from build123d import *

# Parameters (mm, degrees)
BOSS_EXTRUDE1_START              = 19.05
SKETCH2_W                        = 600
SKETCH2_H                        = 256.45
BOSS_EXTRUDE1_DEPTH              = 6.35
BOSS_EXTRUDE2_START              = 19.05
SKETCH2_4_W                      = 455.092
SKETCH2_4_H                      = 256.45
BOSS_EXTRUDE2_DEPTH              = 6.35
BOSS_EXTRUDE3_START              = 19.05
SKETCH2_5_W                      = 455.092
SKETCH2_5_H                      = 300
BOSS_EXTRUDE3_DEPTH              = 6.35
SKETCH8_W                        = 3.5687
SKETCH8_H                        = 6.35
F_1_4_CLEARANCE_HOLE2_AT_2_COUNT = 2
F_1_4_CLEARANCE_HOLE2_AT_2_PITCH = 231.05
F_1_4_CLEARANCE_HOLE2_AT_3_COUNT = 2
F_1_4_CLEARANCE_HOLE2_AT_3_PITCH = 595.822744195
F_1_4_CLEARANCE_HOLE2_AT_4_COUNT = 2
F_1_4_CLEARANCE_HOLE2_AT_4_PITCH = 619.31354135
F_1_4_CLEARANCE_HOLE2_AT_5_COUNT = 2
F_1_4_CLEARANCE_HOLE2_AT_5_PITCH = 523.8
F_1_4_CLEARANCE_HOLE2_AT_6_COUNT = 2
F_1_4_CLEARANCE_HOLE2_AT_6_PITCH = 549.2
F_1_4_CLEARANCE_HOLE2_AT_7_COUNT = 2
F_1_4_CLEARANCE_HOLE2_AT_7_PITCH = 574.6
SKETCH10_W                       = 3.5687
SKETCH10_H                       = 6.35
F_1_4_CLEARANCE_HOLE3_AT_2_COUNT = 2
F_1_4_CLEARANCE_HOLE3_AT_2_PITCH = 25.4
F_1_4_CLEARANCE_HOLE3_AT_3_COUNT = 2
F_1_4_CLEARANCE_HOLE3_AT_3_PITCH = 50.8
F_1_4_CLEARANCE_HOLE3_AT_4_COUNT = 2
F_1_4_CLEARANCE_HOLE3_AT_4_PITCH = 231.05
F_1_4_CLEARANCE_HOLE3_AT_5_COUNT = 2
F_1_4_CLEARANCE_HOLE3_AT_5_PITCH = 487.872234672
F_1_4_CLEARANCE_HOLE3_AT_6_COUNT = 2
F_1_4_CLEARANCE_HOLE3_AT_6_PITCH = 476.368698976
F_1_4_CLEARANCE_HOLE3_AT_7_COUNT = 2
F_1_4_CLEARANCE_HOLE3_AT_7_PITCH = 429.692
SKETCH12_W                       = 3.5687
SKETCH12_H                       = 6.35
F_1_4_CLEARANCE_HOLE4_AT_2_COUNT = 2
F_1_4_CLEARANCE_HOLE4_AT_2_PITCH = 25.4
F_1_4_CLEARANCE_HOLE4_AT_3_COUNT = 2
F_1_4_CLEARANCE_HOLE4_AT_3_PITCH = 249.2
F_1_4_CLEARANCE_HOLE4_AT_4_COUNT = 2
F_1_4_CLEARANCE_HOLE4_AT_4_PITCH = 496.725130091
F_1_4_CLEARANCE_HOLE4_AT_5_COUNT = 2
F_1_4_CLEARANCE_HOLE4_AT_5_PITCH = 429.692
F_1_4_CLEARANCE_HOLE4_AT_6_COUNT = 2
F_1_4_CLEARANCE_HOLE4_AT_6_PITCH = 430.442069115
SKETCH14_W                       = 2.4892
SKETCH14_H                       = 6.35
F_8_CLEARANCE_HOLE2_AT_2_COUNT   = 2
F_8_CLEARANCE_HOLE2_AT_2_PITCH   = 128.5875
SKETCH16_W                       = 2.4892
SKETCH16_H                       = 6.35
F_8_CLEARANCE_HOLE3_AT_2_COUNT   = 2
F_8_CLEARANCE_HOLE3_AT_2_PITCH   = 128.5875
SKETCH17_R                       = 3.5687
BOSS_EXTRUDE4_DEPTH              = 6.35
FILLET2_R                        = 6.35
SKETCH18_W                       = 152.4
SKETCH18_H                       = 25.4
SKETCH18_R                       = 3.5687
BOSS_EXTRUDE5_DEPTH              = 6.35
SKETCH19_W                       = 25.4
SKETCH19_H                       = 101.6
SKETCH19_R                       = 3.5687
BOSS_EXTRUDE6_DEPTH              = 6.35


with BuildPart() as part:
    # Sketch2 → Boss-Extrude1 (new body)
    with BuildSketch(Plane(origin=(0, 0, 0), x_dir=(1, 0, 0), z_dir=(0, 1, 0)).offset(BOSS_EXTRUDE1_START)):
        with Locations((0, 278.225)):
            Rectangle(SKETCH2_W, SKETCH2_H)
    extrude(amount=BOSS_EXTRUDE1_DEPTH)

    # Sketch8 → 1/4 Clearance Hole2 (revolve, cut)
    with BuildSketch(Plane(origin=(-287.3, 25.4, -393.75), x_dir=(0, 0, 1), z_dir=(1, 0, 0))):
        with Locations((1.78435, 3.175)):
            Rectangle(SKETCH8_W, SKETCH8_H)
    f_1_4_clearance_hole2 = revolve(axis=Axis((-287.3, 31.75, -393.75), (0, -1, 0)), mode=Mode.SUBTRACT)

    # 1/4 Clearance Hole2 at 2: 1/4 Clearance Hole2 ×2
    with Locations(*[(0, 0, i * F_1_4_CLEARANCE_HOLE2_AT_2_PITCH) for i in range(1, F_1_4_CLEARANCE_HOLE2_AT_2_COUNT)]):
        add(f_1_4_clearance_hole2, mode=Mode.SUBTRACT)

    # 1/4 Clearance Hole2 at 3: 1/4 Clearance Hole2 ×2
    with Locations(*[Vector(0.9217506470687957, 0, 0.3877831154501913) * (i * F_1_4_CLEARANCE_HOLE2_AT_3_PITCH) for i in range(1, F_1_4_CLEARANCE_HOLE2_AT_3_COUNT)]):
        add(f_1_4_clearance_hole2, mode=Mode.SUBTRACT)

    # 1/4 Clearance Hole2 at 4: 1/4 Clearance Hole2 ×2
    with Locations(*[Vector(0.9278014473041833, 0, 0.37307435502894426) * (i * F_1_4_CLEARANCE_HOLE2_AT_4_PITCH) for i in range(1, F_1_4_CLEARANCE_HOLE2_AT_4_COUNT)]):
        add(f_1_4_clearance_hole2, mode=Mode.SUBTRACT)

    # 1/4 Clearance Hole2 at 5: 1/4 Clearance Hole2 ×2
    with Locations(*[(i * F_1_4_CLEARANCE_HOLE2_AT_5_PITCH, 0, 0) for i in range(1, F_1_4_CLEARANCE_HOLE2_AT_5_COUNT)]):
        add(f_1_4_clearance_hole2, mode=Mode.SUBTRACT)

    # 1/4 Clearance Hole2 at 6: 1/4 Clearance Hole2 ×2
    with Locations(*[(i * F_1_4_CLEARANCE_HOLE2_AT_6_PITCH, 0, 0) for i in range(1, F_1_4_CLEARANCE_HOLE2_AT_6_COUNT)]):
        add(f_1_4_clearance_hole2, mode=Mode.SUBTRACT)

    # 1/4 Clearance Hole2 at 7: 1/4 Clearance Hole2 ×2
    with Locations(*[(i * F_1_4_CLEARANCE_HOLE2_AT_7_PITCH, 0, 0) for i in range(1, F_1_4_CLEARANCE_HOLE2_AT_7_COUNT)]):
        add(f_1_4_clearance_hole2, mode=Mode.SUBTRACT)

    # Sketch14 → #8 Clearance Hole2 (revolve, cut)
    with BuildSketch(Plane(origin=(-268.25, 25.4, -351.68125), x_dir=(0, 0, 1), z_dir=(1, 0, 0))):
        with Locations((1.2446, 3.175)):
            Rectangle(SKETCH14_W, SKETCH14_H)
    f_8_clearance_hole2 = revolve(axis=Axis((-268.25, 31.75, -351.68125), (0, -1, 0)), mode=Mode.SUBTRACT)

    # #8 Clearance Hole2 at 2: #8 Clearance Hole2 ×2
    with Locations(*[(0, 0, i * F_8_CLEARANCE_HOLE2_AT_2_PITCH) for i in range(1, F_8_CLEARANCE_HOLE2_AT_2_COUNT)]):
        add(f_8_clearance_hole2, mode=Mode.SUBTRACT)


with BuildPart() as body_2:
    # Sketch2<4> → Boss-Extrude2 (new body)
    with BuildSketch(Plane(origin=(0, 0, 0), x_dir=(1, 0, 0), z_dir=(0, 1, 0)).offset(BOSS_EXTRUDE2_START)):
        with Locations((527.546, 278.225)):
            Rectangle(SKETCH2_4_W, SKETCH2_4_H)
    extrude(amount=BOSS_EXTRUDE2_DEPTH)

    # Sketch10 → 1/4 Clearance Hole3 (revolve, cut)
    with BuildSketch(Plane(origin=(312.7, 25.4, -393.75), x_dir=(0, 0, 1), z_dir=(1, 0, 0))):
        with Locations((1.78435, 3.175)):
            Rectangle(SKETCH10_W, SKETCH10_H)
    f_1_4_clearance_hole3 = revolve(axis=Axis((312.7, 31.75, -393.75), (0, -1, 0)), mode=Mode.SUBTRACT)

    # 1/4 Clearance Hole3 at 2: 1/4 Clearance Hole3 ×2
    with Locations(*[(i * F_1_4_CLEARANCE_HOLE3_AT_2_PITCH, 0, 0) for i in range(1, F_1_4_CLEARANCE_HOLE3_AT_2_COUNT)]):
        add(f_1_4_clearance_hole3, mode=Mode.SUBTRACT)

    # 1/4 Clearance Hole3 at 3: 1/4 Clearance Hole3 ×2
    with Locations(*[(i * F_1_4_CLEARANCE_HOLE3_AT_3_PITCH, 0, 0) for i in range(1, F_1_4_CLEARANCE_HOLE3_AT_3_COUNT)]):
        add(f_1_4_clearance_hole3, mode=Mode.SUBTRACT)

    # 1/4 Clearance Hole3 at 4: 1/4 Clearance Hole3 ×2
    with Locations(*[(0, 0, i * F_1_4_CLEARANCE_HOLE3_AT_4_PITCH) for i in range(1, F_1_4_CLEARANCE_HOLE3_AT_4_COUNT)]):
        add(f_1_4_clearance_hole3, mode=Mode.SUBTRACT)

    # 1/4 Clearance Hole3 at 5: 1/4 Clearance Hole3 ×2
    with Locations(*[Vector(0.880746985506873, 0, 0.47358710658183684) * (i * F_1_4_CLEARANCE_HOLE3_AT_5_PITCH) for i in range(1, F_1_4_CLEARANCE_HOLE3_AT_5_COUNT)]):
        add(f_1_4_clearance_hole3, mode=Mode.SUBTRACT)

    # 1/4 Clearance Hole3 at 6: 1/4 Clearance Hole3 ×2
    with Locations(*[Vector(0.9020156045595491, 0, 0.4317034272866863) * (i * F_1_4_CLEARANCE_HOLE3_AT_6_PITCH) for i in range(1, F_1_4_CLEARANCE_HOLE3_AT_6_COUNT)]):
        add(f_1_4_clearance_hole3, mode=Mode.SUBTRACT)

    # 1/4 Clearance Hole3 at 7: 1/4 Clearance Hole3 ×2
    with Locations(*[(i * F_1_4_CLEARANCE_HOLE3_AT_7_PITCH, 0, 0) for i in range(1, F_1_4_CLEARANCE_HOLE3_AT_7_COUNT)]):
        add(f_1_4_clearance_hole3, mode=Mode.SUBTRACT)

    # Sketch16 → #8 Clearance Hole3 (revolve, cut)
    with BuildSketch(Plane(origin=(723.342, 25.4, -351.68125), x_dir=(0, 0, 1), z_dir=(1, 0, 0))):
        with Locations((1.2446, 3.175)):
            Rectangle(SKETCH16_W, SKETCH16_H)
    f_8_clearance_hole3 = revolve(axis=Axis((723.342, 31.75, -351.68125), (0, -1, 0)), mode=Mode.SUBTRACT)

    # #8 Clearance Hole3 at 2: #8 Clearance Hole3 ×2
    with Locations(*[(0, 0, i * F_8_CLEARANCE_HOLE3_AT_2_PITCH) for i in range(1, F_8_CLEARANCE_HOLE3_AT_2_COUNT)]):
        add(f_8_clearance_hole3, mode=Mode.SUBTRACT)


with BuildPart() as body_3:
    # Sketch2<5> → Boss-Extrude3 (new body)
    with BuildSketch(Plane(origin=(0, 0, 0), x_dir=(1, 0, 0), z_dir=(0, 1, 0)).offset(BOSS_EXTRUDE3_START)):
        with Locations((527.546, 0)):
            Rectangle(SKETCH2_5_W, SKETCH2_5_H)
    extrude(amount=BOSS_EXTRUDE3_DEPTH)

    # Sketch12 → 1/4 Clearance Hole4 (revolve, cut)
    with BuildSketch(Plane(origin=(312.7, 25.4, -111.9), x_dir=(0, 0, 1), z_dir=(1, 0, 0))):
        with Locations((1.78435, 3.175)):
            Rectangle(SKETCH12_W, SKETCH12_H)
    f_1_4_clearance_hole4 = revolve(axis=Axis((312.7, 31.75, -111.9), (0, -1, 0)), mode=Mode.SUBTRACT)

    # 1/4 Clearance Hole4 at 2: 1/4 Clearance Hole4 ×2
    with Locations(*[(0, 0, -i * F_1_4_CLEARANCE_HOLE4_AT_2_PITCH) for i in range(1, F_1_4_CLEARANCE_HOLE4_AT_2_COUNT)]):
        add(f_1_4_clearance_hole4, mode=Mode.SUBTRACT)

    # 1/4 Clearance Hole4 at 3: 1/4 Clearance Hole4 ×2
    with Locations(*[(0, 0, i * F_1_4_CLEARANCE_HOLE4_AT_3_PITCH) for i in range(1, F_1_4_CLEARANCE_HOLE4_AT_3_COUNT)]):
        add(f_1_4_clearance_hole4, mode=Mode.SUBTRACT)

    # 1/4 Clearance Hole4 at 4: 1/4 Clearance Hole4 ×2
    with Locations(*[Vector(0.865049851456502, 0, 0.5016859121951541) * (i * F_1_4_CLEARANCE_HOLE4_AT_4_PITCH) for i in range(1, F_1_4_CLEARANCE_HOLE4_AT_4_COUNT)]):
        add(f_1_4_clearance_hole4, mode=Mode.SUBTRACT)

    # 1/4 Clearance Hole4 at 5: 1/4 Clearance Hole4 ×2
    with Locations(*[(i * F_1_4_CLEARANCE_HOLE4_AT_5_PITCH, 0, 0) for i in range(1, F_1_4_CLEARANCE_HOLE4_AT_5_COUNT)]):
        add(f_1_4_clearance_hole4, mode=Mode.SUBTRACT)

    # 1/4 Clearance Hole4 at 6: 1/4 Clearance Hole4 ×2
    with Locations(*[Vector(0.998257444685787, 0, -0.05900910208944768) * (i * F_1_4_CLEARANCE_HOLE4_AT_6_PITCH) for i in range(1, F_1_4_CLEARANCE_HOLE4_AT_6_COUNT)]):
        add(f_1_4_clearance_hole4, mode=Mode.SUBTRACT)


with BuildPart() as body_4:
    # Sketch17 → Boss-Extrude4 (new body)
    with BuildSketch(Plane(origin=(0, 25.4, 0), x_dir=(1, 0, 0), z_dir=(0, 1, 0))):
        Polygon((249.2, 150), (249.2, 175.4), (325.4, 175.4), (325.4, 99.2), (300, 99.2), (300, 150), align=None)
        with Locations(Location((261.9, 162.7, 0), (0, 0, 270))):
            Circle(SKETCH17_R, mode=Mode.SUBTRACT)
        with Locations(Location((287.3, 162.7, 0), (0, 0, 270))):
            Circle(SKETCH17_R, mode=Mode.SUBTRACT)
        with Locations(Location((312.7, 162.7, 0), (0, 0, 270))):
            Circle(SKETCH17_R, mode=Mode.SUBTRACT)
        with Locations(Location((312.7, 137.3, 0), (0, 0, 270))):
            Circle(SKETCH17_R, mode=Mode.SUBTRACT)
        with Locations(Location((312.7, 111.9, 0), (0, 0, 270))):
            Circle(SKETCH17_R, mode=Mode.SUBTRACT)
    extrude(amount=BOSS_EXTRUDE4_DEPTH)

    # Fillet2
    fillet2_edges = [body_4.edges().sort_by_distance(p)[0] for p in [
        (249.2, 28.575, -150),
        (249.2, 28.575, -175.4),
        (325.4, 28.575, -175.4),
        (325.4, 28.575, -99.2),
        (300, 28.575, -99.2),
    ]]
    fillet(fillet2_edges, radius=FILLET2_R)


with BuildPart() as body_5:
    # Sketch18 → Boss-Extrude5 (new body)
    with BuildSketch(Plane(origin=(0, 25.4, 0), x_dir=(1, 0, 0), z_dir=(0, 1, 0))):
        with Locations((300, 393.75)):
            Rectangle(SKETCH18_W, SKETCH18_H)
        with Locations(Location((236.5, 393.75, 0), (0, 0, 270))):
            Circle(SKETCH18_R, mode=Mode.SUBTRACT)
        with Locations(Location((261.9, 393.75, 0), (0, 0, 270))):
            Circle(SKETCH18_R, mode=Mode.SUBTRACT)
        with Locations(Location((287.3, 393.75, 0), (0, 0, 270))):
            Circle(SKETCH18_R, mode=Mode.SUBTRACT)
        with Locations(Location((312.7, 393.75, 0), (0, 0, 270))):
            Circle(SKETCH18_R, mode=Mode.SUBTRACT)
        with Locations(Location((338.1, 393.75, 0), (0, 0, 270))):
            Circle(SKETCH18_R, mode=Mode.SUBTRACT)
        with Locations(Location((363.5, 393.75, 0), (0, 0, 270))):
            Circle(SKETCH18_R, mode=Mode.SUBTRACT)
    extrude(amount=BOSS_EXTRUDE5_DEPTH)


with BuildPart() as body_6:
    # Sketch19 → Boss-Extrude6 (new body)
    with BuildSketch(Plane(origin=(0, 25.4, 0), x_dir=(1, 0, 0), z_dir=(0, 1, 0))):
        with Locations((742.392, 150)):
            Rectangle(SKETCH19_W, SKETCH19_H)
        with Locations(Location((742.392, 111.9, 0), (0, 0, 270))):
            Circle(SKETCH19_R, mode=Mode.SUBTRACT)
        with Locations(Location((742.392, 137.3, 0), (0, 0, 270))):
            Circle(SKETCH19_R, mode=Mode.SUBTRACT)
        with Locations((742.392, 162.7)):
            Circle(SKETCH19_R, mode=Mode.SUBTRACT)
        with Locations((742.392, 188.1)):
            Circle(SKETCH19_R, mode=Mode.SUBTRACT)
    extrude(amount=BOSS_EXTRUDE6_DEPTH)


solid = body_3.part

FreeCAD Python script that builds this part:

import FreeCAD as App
import Part
import Sketcher
from FreeCAD import Vector
Q = App.Units.Quantity


def edges_at(feature, points):
    """Names of the edges that pass closest to the given points."""
    edges = feature.Shape.Edges
    near = lambda p: min(range(len(edges)), key=lambda i: edges[i].distToShape(Part.Vertex(*p))[0])
    return sorted({f"Edge{near(p) + 1}" for p in points})

doc = App.newDocument("Part")
body = doc.addObject("PartDesign::Body", "Body")

# Sketch on XZ plane
sketch1 = body.newObject("Sketcher::SketchObject", "Sketch")
sketch1.AttachmentSupport = (doc.getObject("XZ_Plane"), [""])
sketch1.MapMode = "FlatFace"
sketch1.AttachmentOffset = App.Placement(Vector(0, 0, -0.75 * 25.4), App.Rotation())
sketch1.addGeometry(Part.LineSegment(Vector(-300, -406, 0), Vector(-300, -150, 0)), False)
sketch1.addGeometry(Part.LineSegment(Vector(-300, -150, 0), Vector(300, -150, 0)), False)
sketch1.addGeometry(Part.LineSegment(Vector(300, -150, 0), Vector(300, -406, 0)), False)
sketch1.addGeometry(Part.LineSegment(Vector(300, -406, 0), Vector(-300, -406, 0)), False)
sketch1.addConstraint(Sketcher.Constraint("Coincident", 0, 2, 1, 1))
sketch1.addConstraint(Sketcher.Constraint("Coincident", 1, 2, 2, 1))
sketch1.addConstraint(Sketcher.Constraint("Coincident", 2, 2, 3, 1))
sketch1.addConstraint(Sketcher.Constraint("Coincident", 3, 2, 0, 1))
sketch1.addConstraint(Sketcher.Constraint("Vertical", 0))
sketch1.addConstraint(Sketcher.Constraint("Horizontal", 1))
sketch1.addConstraint(Sketcher.Constraint("Vertical", 2))
sketch1.addConstraint(Sketcher.Constraint("Horizontal", 3))
sketch1.addConstraint(Sketcher.Constraint("DistanceX", 1, 1, 1, 2, Q("600 mm")))
sketch1.addConstraint(Sketcher.Constraint("DistanceY", 0, 1, 0, 2, Q("256.45 mm")))
sketch1.addConstraint(Sketcher.Constraint("DistanceX", 0, 2, -1, 1, Q("300 mm")))
sketch1.addConstraint(Sketcher.Constraint("DistanceY", 0, 2, -1, 1, Q("150 mm")))
pad1 = body.newObject("PartDesign::Pad", "Pad")
pad1.Profile = sketch1
pad1.Length = Q("0.25 in")
pad1.Reversed = True

# Sketch on YZ plane
sketch2 = body.newObject("Sketcher::SketchObject", "Sketch001")
sketch2.AttachmentSupport = (doc.getObject("YZ_Plane"), [""])
sketch2.MapMode = "FlatFace"
sketch2.AttachmentOffset = App.Placement(Vector(0, 0, -287.3), App.Rotation())
sketch2.addGeometry(Part.LineSegment(Vector(19.1, -393.8, 0), Vector(25.4, -393.8, 0)), False)
sketch2.addGeometry(Part.LineSegment(Vector(25.4, -393.8, 0), Vector(25.4, -390.2, 0)), False)
sketch2.addGeometry(Part.LineSegment(Vector(25.4, -390.2, 0), Vector(19.1, -390.2, 0)), False)
sketch2.addGeometry(Part.LineSegment(Vector(19.1, -390.2, 0), Vector(19.1, -393.8, 0)), False)
sketch2.addGeometry(Part.LineSegment(Vector(25.4, -393.8, 0), Vector(19.1, -393.8, 0)), True)  # axis
sketch2.addConstraint(Sketcher.Constraint("Coincident", 0, 2, 1, 1))
sketch2.addConstraint(Sketcher.Constraint("Coincident", 1, 2, 2, 1))
sketch2.addConstraint(Sketcher.Constraint("Coincident", 2, 2, 3, 1))
sketch2.addConstraint(Sketcher.Constraint("Coincident", 3, 2, 0, 1))
sketch2.addConstraint(Sketcher.Constraint("Horizontal", 0))
sketch2.addConstraint(Sketcher.Constraint("Vertical", 1))
sketch2.addConstraint(Sketcher.Constraint("Horizontal", 2))
sketch2.addConstraint(Sketcher.Constraint("Vertical", 3))
sketch2.addConstraint(Sketcher.Constraint("Horizontal", 4))
sketch2.addConstraint(Sketcher.Constraint("Coincident", 4, 1, 0, 2))
sketch2.addConstraint(Sketcher.Constraint("Vertical", 2, 2, 4, 2))
sketch2.addConstraint(Sketcher.Constraint("DistanceX", -1, 1, 0, 2, Q("1 in")))
sketch2.addConstraint(Sketcher.Constraint("DistanceX", 0, 1, 0, 2, Q("0.25 in")))
sketch2.addConstraint(Sketcher.Constraint("DistanceY", 1, 1, 1, 2, Q("0.1405 in")))
sketch2.addConstraint(Sketcher.Constraint("DistanceY", 0, 2, -1, 1, Q("393.75 mm")))
groove = body.newObject("PartDesign::Groove", "Groove")
groove.Profile = sketch2
groove.ReferenceAxis = (sketch2, ["Axis0"])
groove.Angle = 360
doc.recompute()

linearpattern = body.newObject("PartDesign::LinearPattern", "LinearPattern")
linearpattern.Originals = [groove]
linearpattern.Direction = (doc.getObject("Z_Axis"), [""])
linearpattern.Mode = "offset"
linearpattern.Offset = 231.05
linearpattern.Occurrences = 2
body.Tip = linearpattern
doc.recompute()

datumline = body.newObject("PartDesign::Line", "DatumLine")
datumline.Placement = App.Placement(Vector(0, 0, 0), App.Rotation(Vector(0, 0, 1), Vector(0.921750647, 0, 0.387783115)))
linearpattern2 = body.newObject("PartDesign::LinearPattern", "LinearPattern001")
linearpattern2.Originals = [groove]
linearpattern2.Direction = (datumline, [""])
linearpattern2.Mode = "offset"
linearpattern2.Offset = 595.822744
linearpattern2.Occurrences = 2
body.Tip = linearpattern2
doc.recompute()

datumline2 = body.newObject("PartDesign::Line", "DatumLine001")
datumline2.Placement = App.Placement(Vector(0, 0, 0), App.Rotation(Vector(0, 0, 1), Vector(0.927801447, 0, 0.373074355)))
linearpattern3 = body.newObject("PartDesign::LinearPattern", "LinearPattern002")
linearpattern3.Originals = [groove]
linearpattern3.Direction = (datumline2, [""])
linearpattern3.Mode = "offset"
linearpattern3.Offset = 619.313541
linearpattern3.Occurrences = 2
body.Tip = linearpattern3
doc.recompute()

linearpattern4 = body.newObject("PartDesign::LinearPattern", "LinearPattern003")
linearpattern4.Originals = [groove]
linearpattern4.Direction = (doc.getObject("X_Axis"), [""])
linearpattern4.Mode = "offset"
linearpattern4.Offset = 523.8
linearpattern4.Occurrences = 2
body.Tip = linearpattern4
doc.recompute()

linearpattern5 = body.newObject("PartDesign::LinearPattern", "LinearPattern004")
linearpattern5.Originals = [groove]
linearpattern5.Direction = (doc.getObject("X_Axis"), [""])
linearpattern5.Mode = "offset"
linearpattern5.Offset = 549.2
linearpattern5.Occurrences = 2
body.Tip = linearpattern5
doc.recompute()

linearpattern6 = body.newObject("PartDesign::LinearPattern", "LinearPattern005")
linearpattern6.Originals = [groove]
linearpattern6.Direction = (doc.getObject("X_Axis"), [""])
linearpattern6.Mode = "offset"
linearpattern6.Offset = 574.6
linearpattern6.Occurrences = 2
body.Tip = linearpattern6

# Sketch on YZ plane
sketch3 = body.newObject("Sketcher::SketchObject", "Sketch002")
sketch3.AttachmentSupport = (doc.getObject("YZ_Plane"), [""])
sketch3.MapMode = "FlatFace"
sketch3.AttachmentOffset = App.Placement(Vector(0, 0, -268.25), App.Rotation())
sketch3.addGeometry(Part.LineSegment(Vector(19.1, -351.7, 0), Vector(25.4, -351.7, 0)), False)
sketch3.addGeometry(Part.LineSegment(Vector(25.4, -351.7, 0), Vector(25.4, -349.2, 0)), False)
sketch3.addGeometry(Part.LineSegment(Vector(25.4, -349.2, 0), Vector(19.1, -349.2, 0)), False)
sketch3.addGeometry(Part.LineSegment(Vector(19.1, -349.2, 0), Vector(19.1, -351.7, 0)), False)
sketch3.addGeometry(Part.LineSegment(Vector(25.4, -351.7, 0), Vector(19.1, -351.7, 0)), True)  # axis
sketch3.addConstraint(Sketcher.Constraint("Coincident", 0, 2, 1, 1))
sketch3.addConstraint(Sketcher.Constraint("Coincident", 1, 2, 2, 1))
sketch3.addConstraint(Sketcher.Constraint("Coincident", 2, 2, 3, 1))
sketch3.addConstraint(Sketcher.Constraint("Coincident", 3, 2, 0, 1))
sketch3.addConstraint(Sketcher.Constraint("Horizontal", 0))
sketch3.addConstraint(Sketcher.Constraint("Vertical", 1))
sketch3.addConstraint(Sketcher.Constraint("Horizontal", 2))
sketch3.addConstraint(Sketcher.Constraint("Vertical", 3))
sketch3.addConstraint(Sketcher.Constraint("Horizontal", 4))
sketch3.addConstraint(Sketcher.Constraint("Coincident", 4, 1, 0, 2))
sketch3.addConstraint(Sketcher.Constraint("Vertical", 2, 2, 4, 2))
sketch3.addConstraint(Sketcher.Constraint("DistanceX", -1, 1, 0, 2, Q("1 in")))
sketch3.addConstraint(Sketcher.Constraint("DistanceX", 0, 1, 0, 2, Q("0.25 in")))
sketch3.addConstraint(Sketcher.Constraint("DistanceY", 1, 1, 1, 2, Q("0.098 in")))
sketch3.addConstraint(Sketcher.Constraint("DistanceY", 0, 2, -1, 1, Q("351.68125 mm")))
groove2 = body.newObject("PartDesign::Groove", "Groove001")
groove2.Profile = sketch3
groove2.ReferenceAxis = (sketch3, ["Axis0"])
groove2.Angle = 360
doc.recompute()

linearpattern7 = body.newObject("PartDesign::LinearPattern", "LinearPattern006")
linearpattern7.Originals = [groove2]
linearpattern7.Direction = (doc.getObject("Z_Axis"), [""])
linearpattern7.Mode = "offset"
linearpattern7.Offset = Q("5.0625 in")
linearpattern7.Occurrences = 2
body.Tip = linearpattern7
body2 = doc.addObject("PartDesign::Body", "Body001")

# Sketch on XZ plane
sketch4 = body2.newObject("Sketcher::SketchObject", "Sketch003")
sketch4.AttachmentSupport = (doc.getObject("XZ_Plane001"), [""])
sketch4.MapMode = "FlatFace"
sketch4.AttachmentOffset = App.Placement(Vector(0, 0, -0.75 * 25.4), App.Rotation())
sketch4.addGeometry(Part.LineSegment(Vector(300, -406, 0), Vector(300, -150, 0)), False)
sketch4.addGeometry(Part.LineSegment(Vector(300, -150, 0), Vector(755, -150, 0)), False)
sketch4.addGeometry(Part.LineSegment(Vector(755, -150, 0), Vector(755, -406, 0)), False)
sketch4.addGeometry(Part.LineSegment(Vector(755, -406, 0), Vector(300, -406, 0)), False)
sketch4.addConstraint(Sketcher.Constraint("Coincident", 0, 2, 1, 1))
sketch4.addConstraint(Sketcher.Constraint("Coincident", 1, 2, 2, 1))
sketch4.addConstraint(Sketcher.Constraint("Coincident", 2, 2, 3, 1))
sketch4.addConstraint(Sketcher.Constraint("Coincident", 3, 2, 0, 1))
sketch4.addConstraint(Sketcher.Constraint("Vertical", 0))
sketch4.addConstraint(Sketcher.Constraint("Horizontal", 1))
sketch4.addConstraint(Sketcher.Constraint("Vertical", 2))
sketch4.addConstraint(Sketcher.Constraint("Horizontal", 3))
sketch4.addConstraint(Sketcher.Constraint("DistanceX", 1, 1, 1, 2, Q("455.092 mm")))
sketch4.addConstraint(Sketcher.Constraint("DistanceY", 0, 1, 0, 2, Q("256.45 mm")))
sketch4.addConstraint(Sketcher.Constraint("DistanceX", -1, 1, 0, 2, Q("300 mm")))
sketch4.addConstraint(Sketcher.Constraint("DistanceY", 0, 2, -1, 1, Q("150 mm")))
pad2 = body2.newObject("PartDesign::Pad", "Pad001")
pad2.Profile = sketch4
pad2.Length = Q("0.25 in")
pad2.Reversed = True

# Sketch on YZ plane
sketch5 = body2.newObject("Sketcher::SketchObject", "Sketch004")
sketch5.AttachmentSupport = (doc.getObject("YZ_Plane001"), [""])
sketch5.MapMode = "FlatFace"
sketch5.AttachmentOffset = App.Placement(Vector(0, 0, 312.7), App.Rotation())
sketch5.addGeometry(Part.LineSegment(Vector(19.1, -393.8, 0), Vector(25.4, -393.8, 0)), False)
sketch5.addGeometry(Part.LineSegment(Vector(25.4, -393.8, 0), Vector(25.4, -390.2, 0)), False)
sketch5.addGeometry(Part.LineSegment(Vector(25.4, -390.2, 0), Vector(19.1, -390.2, 0)), False)
sketch5.addGeometry(Part.LineSegment(Vector(19.1, -390.2, 0), Vector(19.1, -393.8, 0)), False)
sketch5.addGeometry(Part.LineSegment(Vector(25.4, -393.8, 0), Vector(19.1, -393.8, 0)), True)  # axis
sketch5.addConstraint(Sketcher.Constraint("Coincident", 0, 2, 1, 1))
sketch5.addConstraint(Sketcher.Constraint("Coincident", 1, 2, 2, 1))
sketch5.addConstraint(Sketcher.Constraint("Coincident", 2, 2, 3, 1))
sketch5.addConstraint(Sketcher.Constraint("Coincident", 3, 2, 0, 1))
sketch5.addConstraint(Sketcher.Constraint("Horizontal", 0))
sketch5.addConstraint(Sketcher.Constraint("Vertical", 1))
sketch5.addConstraint(Sketcher.Constraint("Horizontal", 2))
sketch5.addConstraint(Sketcher.Constraint("Vertical", 3))
sketch5.addConstraint(Sketcher.Constraint("Horizontal", 4))
sketch5.addConstraint(Sketcher.Constraint("Coincident", 4, 1, 0, 2))
sketch5.addConstraint(Sketcher.Constraint("Vertical", 2, 2, 4, 2))
sketch5.addConstraint(Sketcher.Constraint("DistanceX", -1, 1, 0, 2, Q("1 in")))
sketch5.addConstraint(Sketcher.Constraint("DistanceX", 0, 1, 0, 2, Q("0.25 in")))
sketch5.addConstraint(Sketcher.Constraint("DistanceY", 1, 1, 1, 2, Q("0.1405 in")))
sketch5.addConstraint(Sketcher.Constraint("DistanceY", 0, 2, -1, 1, Q("393.75 mm")))
groove3 = body2.newObject("PartDesign::Groove", "Groove002")
groove3.Profile = sketch5
groove3.ReferenceAxis = (sketch5, ["Axis0"])
groove3.Angle = 360
doc.recompute()

linearpattern8 = body2.newObject("PartDesign::LinearPattern", "LinearPattern007")
linearpattern8.Originals = [groove3]
linearpattern8.Direction = (doc.getObject("X_Axis001"), [""])
linearpattern8.Mode = "offset"
linearpattern8.Offset = Q("1 in")
linearpattern8.Occurrences = 2
body2.Tip = linearpattern8
doc.recompute()

linearpattern9 = body2.newObject("PartDesign::LinearPattern", "LinearPattern008")
linearpattern9.Originals = [groove3]
linearpattern9.Direction = (doc.getObject("X_Axis001"), [""])
linearpattern9.Mode = "offset"
linearpattern9.Offset = Q("2 in")
linearpattern9.Occurrences = 2
body2.Tip = linearpattern9
doc.recompute()

linearpattern10 = body2.newObject("PartDesign::LinearPattern", "LinearPattern009")
linearpattern10.Originals = [groove3]
linearpattern10.Direction = (doc.getObject("Z_Axis001"), [""])
linearpattern10.Mode = "offset"
linearpattern10.Offset = 231.05
linearpattern10.Occurrences = 2
body2.Tip = linearpattern10
doc.recompute()

datumline3 = body2.newObject("PartDesign::Line", "DatumLine002")
datumline3.Placement = App.Placement(Vector(0, 0, 0), App.Rotation(Vector(0, 0, 1), Vector(0.880746986, 0, 0.473587107)))
linearpattern11 = body2.newObject("PartDesign::LinearPattern", "LinearPattern010")
linearpattern11.Originals = [groove3]
linearpattern11.Direction = (datumline3, [""])
linearpattern11.Mode = "offset"
linearpattern11.Offset = 487.872235
linearpattern11.Occurrences = 2
body2.Tip = linearpattern11
doc.recompute()

datumline4 = body2.newObject("PartDesign::Line", "DatumLine003")
datumline4.Placement = App.Placement(Vector(0, 0, 0), App.Rotation(Vector(0, 0, 1), Vector(0.902015605, 0, 0.431703427)))
linearpattern12 = body2.newObject("PartDesign::LinearPattern", "LinearPattern011")
linearpattern12.Originals = [groove3]
linearpattern12.Direction = (datumline4, [""])
linearpattern12.Mode = "offset"
linearpattern12.Offset = 476.368699
linearpattern12.Occurrences = 2
body2.Tip = linearpattern12
doc.recompute()

linearpattern13 = body2.newObject("PartDesign::LinearPattern", "LinearPattern012")
linearpattern13.Originals = [groove3]
linearpattern13.Direction = (doc.getObject("X_Axis001"), [""])
linearpattern13.Mode = "offset"
linearpattern13.Offset = 429.692
linearpattern13.Occurrences = 2
body2.Tip = linearpattern13

# Sketch on YZ plane
sketch6 = body2.newObject("Sketcher::SketchObject", "Sketch005")
sketch6.AttachmentSupport = (doc.getObject("YZ_Plane001"), [""])
sketch6.MapMode = "FlatFace"
sketch6.AttachmentOffset = App.Placement(Vector(0, 0, 723.342), App.Rotation())
sketch6.addGeometry(Part.LineSegment(Vector(19.1, -351.7, 0), Vector(25.4, -351.7, 0)), False)
sketch6.addGeometry(Part.LineSegment(Vector(25.4, -351.7, 0), Vector(25.4, -349.2, 0)), False)
sketch6.addGeometry(Part.LineSegment(Vector(25.4, -349.2, 0), Vector(19.1, -349.2, 0)), False)
sketch6.addGeometry(Part.LineSegment(Vector(19.1, -349.2, 0), Vector(19.1, -351.7, 0)), False)
sketch6.addGeometry(Part.LineSegment(Vector(25.4, -351.7, 0), Vector(19.1, -351.7, 0)), True)  # axis
sketch6.addConstraint(Sketcher.Constraint("Coincident", 0, 2, 1, 1))
sketch6.addConstraint(Sketcher.Constraint("Coincident", 1, 2, 2, 1))
sketch6.addConstraint(Sketcher.Constraint("Coincident", 2, 2, 3, 1))
sketch6.addConstraint(Sketcher.Constraint("Coincident", 3, 2, 0, 1))
sketch6.addConstraint(Sketcher.Constraint("Horizontal", 0))
sketch6.addConstraint(Sketcher.Constraint("Vertical", 1))
sketch6.addConstraint(Sketcher.Constraint("Horizontal", 2))
sketch6.addConstraint(Sketcher.Constraint("Vertical", 3))
sketch6.addConstraint(Sketcher.Constraint("Horizontal", 4))
sketch6.addConstraint(Sketcher.Constraint("Coincident", 4, 1, 0, 2))
sketch6.addConstraint(Sketcher.Constraint("Vertical", 2, 2, 4, 2))
sketch6.addConstraint(Sketcher.Constraint("DistanceX", -1, 1, 0, 2, Q("1 in")))
sketch6.addConstraint(Sketcher.Constraint("DistanceX", 0, 1, 0, 2, Q("0.25 in")))
sketch6.addConstraint(Sketcher.Constraint("DistanceY", 1, 1, 1, 2, Q("0.098 in")))
sketch6.addConstraint(Sketcher.Constraint("DistanceY", 0, 2, -1, 1, Q("351.68125 mm")))
groove4 = body2.newObject("PartDesign::Groove", "Groove003")
groove4.Profile = sketch6
groove4.ReferenceAxis = (sketch6, ["Axis0"])
groove4.Angle = 360
doc.recompute()

linearpattern14 = body2.newObject("PartDesign::LinearPattern", "LinearPattern013")
linearpattern14.Originals = [groove4]
linearpattern14.Direction = (doc.getObject("Z_Axis001"), [""])
linearpattern14.Mode = "offset"
linearpattern14.Offset = Q("5.0625 in")
linearpattern14.Occurrences = 2
body2.Tip = linearpattern14
body3 = doc.addObject("PartDesign::Body", "Body002")

# Sketch on XZ plane
sketch7 = body3.newObject("Sketcher::SketchObject", "Sketch006")
sketch7.AttachmentSupport = (doc.getObject("XZ_Plane002"), [""])
sketch7.MapMode = "FlatFace"
sketch7.AttachmentOffset = App.Placement(Vector(0, 0, -0.75 * 25.4), App.Rotation())
sketch7.addGeometry(Part.LineSegment(Vector(300, -150, 0), Vector(300, 150, 0)), False)
sketch7.addGeometry(Part.LineSegment(Vector(300, 150, 0), Vector(755, 150, 0)), False)
sketch7.addGeometry(Part.LineSegment(Vector(755, 150, 0), Vector(755, -150, 0)), False)
sketch7.addGeometry(Part.LineSegment(Vector(755, -150, 0), Vector(300, -150, 0)), False)
sketch7.addConstraint(Sketcher.Constraint("Coincident", 0, 2, 1, 1))
sketch7.addConstraint(Sketcher.Constraint("Coincident", 1, 2, 2, 1))
sketch7.addConstraint(Sketcher.Constraint("Coincident", 2, 2, 3, 1))
sketch7.addConstraint(Sketcher.Constraint("Coincident", 3, 2, 0, 1))
sketch7.addConstraint(Sketcher.Constraint("Vertical", 0))
sketch7.addConstraint(Sketcher.Constraint("Horizontal", 1))
sketch7.addConstraint(Sketcher.Constraint("Vertical", 2))
sketch7.addConstraint(Sketcher.Constraint("Horizontal", 3))
sketch7.addConstraint(Sketcher.Constraint("DistanceX", 1, 1, 1, 2, Q("455.092 mm")))
sketch7.addConstraint(Sketcher.Constraint("DistanceY", 0, 1, 0, 2, Q("300 mm")))
sketch7.addConstraint(Sketcher.Constraint("DistanceX", -1, 1, 0, 2, Q("300 mm")))
sketch7.addConstraint(Sketcher.Constraint("DistanceY", -1, 1, 0, 2, Q("150 mm")))
pad3 = body3.newObject("PartDesign::Pad", "Pad002")
pad3.Profile = sketch7
pad3.Length = Q("0.25 in")
pad3.Reversed = True

# Sketch on YZ plane
sketch8 = body3.newObject("Sketcher::SketchObject", "Sketch007")
sketch8.AttachmentSupport = (doc.getObject("YZ_Plane002"), [""])
sketch8.MapMode = "FlatFace"
sketch8.AttachmentOffset = App.Placement(Vector(0, 0, 312.7), App.Rotation())
sketch8.addGeometry(Part.LineSegment(Vector(19.1, -111.9, 0), Vector(25.4, -111.9, 0)), False)
sketch8.addGeometry(Part.LineSegment(Vector(25.4, -111.9, 0), Vector(25.4, -108.3, 0)), False)
sketch8.addGeometry(Part.LineSegment(Vector(25.4, -108.3, 0), Vector(19.1, -108.3, 0)), False)
sketch8.addGeometry(Part.LineSegment(Vector(19.1, -108.3, 0), Vector(19.1, -111.9, 0)), False)
sketch8.addGeometry(Part.LineSegment(Vector(25.4, -111.9, 0), Vector(19.1, -111.9, 0)), True)  # axis
sketch8.addConstraint(Sketcher.Constraint("Coincident", 0, 2, 1, 1))
sketch8.addConstraint(Sketcher.Constraint("Coincident", 1, 2, 2, 1))
sketch8.addConstraint(Sketcher.Constraint("Coincident", 2, 2, 3, 1))
sketch8.addConstraint(Sketcher.Constraint("Coincident", 3, 2, 0, 1))
sketch8.addConstraint(Sketcher.Constraint("Horizontal", 0))
sketch8.addConstraint(Sketcher.Constraint("Vertical", 1))
sketch8.addConstraint(Sketcher.Constraint("Horizontal", 2))
sketch8.addConstraint(Sketcher.Constraint("Vertical", 3))
sketch8.addConstraint(Sketcher.Constraint("Horizontal", 4))
sketch8.addConstraint(Sketcher.Constraint("Coincident", 4, 1, 0, 2))
sketch8.addConstraint(Sketcher.Constraint("Vertical", 2, 2, 4, 2))
sketch8.addConstraint(Sketcher.Constraint("DistanceX", -1, 1, 0, 2, Q("1 in")))
sketch8.addConstraint(Sketcher.Constraint("DistanceX", 0, 1, 0, 2, Q("0.25 in")))
sketch8.addConstraint(Sketcher.Constraint("DistanceY", 1, 1, 1, 2, Q("0.1405 in")))
sketch8.addConstraint(Sketcher.Constraint("DistanceY", 0, 2, -1, 1, Q("111.9 mm")))
groove5 = body3.newObject("PartDesign::Groove", "Groove004")
groove5.Profile = sketch8
groove5.ReferenceAxis = (sketch8, ["Axis0"])
groove5.Angle = 360
doc.recompute()

linearpattern15 = body3.newObject("PartDesign::LinearPattern", "LinearPattern014")
linearpattern15.Originals = [groove5]
linearpattern15.Direction = (doc.getObject("Z_Axis002"), [""])
linearpattern15.Mode = "offset"
linearpattern15.Offset = Q("1 in")
linearpattern15.Occurrences = 2
linearpattern15.Reversed = True
body3.Tip = linearpattern15
doc.recompute()

linearpattern16 = body3.newObject("PartDesign::LinearPattern", "LinearPattern015")
linearpattern16.Originals = [groove5]
linearpattern16.Direction = (doc.getObject("Z_Axis002"), [""])
linearpattern16.Mode = "offset"
linearpattern16.Offset = 249.2
linearpattern16.Occurrences = 2
body3.Tip = linearpattern16
doc.recompute()

datumline5 = body3.newObject("PartDesign::Line", "DatumLine004")
datumline5.Placement = App.Placement(Vector(0, 0, 0), App.Rotation(Vector(0, 0, 1), Vector(0.865049851, 0, 0.501685912)))
linearpattern17 = body3.newObject("PartDesign::LinearPattern", "LinearPattern016")
linearpattern17.Originals = [groove5]
linearpattern17.Direction = (datumline5, [""])
linearpattern17.Mode = "offset"
linearpattern17.Offset = 496.72513
linearpattern17.Occurrences = 2
body3.Tip = linearpattern17
doc.recompute()

linearpattern18 = body3.newObject("PartDesign::LinearPattern", "LinearPattern017")
linearpattern18.Originals = [groove5]
linearpattern18.Direction = (doc.getObject("X_Axis002"), [""])
linearpattern18.Mode = "offset"
linearpattern18.Offset = 429.692
linearpattern18.Occurrences = 2
body3.Tip = linearpattern18
doc.recompute()

datumline6 = body3.newObject("PartDesign::Line", "DatumLine005")
datumline6.Placement = App.Placement(Vector(0, 0, 0), App.Rotation(Vector(0, 0, 1), Vector(0.998257445, 0, -0.059009102)))
linearpattern19 = body3.newObject("PartDesign::LinearPattern", "LinearPattern018")
linearpattern19.Originals = [groove5]
linearpattern19.Direction = (datumline6, [""])
linearpattern19.Mode = "offset"
linearpattern19.Offset = 430.442069
linearpattern19.Occurrences = 2
body3.Tip = linearpattern19
body4 = doc.addObject("PartDesign::Body", "Body003")

# Sketch on XZ plane
sketch9 = body4.newObject("Sketcher::SketchObject", "Sketch008")
sketch9.AttachmentSupport = (doc.getObject("XZ_Plane003"), [""])
sketch9.MapMode = "FlatFace"
sketch9.AttachmentOffset = App.Placement(Vector(0, 0, -1 * 25.4), App.Rotation())
sketch9.addGeometry(Part.LineSegment(Vector(249.2, -175.4, 0), Vector(249.2, -150, 0)), False)
sketch9.addGeometry(Part.LineSegment(Vector(249.2, -150, 0), Vector(300, -150, 0)), False)
sketch9.addGeometry(Part.LineSegment(Vector(300, -150, 0), Vector(300, -99.2, 0)), False)
sketch9.addGeometry(Part.LineSegment(Vector(300, -99.2, 0), Vector(325.4, -99.2, 0)), False)
sketch9.addGeometry(Part.LineSegment(Vector(325.4, -99.2, 0), Vector(325.4, -175.4, 0)), False)
sketch9.addGeometry(Part.LineSegment(Vector(325.4, -175.4, 0), Vector(249.2, -175.4, 0)), False)
sketch9.addGeometry(Part.Circle(Vector(312.7, -111.9, 0), Vector(0, 0, 1), 3.6), False)
sketch9.addGeometry(Part.Circle(Vector(312.7, -137.3, 0), Vector(0, 0, 1), 3.6), False)
sketch9.addGeometry(Part.Circle(Vector(312.7, -162.7, 0), Vector(0, 0, 1), 3.6), False)
sketch9.addGeometry(Part.Circle(Vector(287.3, -162.7, 0), Vector(0, 0, 1), 3.6), False)
sketch9.addGeometry(Part.Circle(Vector(261.9, -162.7, 0), Vector(0, 0, 1), 3.6), False)
sketch9.addConstraint(Sketcher.Constraint("Coincident", 0, 2, 1, 1))
sketch9.addConstraint(Sketcher.Constraint("Coincident", 1, 2, 2, 1))
sketch9.addConstraint(Sketcher.Constraint("Coincident", 2, 2, 3, 1))
sketch9.addConstraint(Sketcher.Constraint("Coincident", 3, 2, 4, 1))
sketch9.addConstraint(Sketcher.Constraint("Coincident", 4, 2, 5, 1))
sketch9.addConstraint(Sketcher.Constraint("Coincident", 5, 2, 0, 1))
sketch9.addConstraint(Sketcher.Constraint("Vertical", 0))
sketch9.addConstraint(Sketcher.Constraint("Horizontal", 1))
sketch9.addConstraint(Sketcher.Constraint("Vertical", 2))
sketch9.addConstraint(Sketcher.Constraint("Horizontal", 3))
sketch9.addConstraint(Sketcher.Constraint("Vertical", 4))
sketch9.addConstraint(Sketcher.Constraint("Horizontal", 5))
sketch9.addConstraint(Sketcher.Constraint("Equal", 6, 7))
sketch9.addConstraint(Sketcher.Constraint("Equal", 7, 8))
sketch9.addConstraint(Sketcher.Constraint("Equal", 8, 9))
sketch9.addConstraint(Sketcher.Constraint("Equal", 9, 10))
sketch9.addConstraint(Sketcher.Constraint("Horizontal", 8, 3, 9, 3))
sketch9.addConstraint(Sketcher.Constraint("Horizontal", 9, 3, 10, 3))
sketch9.addConstraint(Sketcher.Constraint("Vertical", 6, 3, 7, 3))
sketch9.addConstraint(Sketcher.Constraint("Vertical", 7, 3, 8, 3))
sketch9.addConstraint(Sketcher.Constraint("Equal", 3, 0))
sketch9.addConstraint(Sketcher.Constraint("Equal", 1, 2))
sketch9.addConstraint(Sketcher.Constraint("DistanceX", 1, 1, 1, 2, Q("2 in")))
sketch9.addConstraint(Sketcher.Constraint("DistanceX", 3, 1, 3, 2, Q("1 in")))
sketch9.addConstraint(Sketcher.Constraint("Diameter", 6, Q("0.281 in")))
sketch9.addConstraint(Sketcher.Constraint("DistanceY", 7, 3, 6, 3, Q("1 in")))
sketch9.addConstraint(Sketcher.Constraint("DistanceY", 8, 3, 7, 3, Q("1 in")))
sketch9.addConstraint(Sketcher.Constraint("DistanceX", 9, 3, 8, 3, Q("1 in")))
sketch9.addConstraint(Sketcher.Constraint("DistanceX", 10, 3, 9, 3, Q("1 in")))
sketch9.addConstraint(Sketcher.Constraint("DistanceX", 0, 2, 10, 3, Q("0.5 in")))
sketch9.addConstraint(Sketcher.Constraint("DistanceY", 10, 3, 0, 2, Q("0.5 in")))
sketch9.addConstraint(Sketcher.Constraint("DistanceX", -1, 1, 6, 3, Q("312.7 mm")))
sketch9.addConstraint(Sketcher.Constraint("DistanceY", 6, 3, -1, 1, Q("111.9 mm")))
pad4 = body4.newObject("PartDesign::Pad", "Pad003")
pad4.Profile = sketch9
pad4.Length = Q("0.25 in")
pad4.Reversed = True
doc.recompute()

fillet = body4.newObject("PartDesign::Fillet", "Fillet")
fillet.Base = (pad4, edges_at(pad4, [
    (249.2, 28.575, -150),
    (249.2, 28.575, -175.4),
    (325.4, 28.575, -175.4),
    (325.4, 28.575, -99.2),
    (300, 28.575, -99.2),
]))
fillet.Radius = Q("0.25 in")
body5 = doc.addObject("PartDesign::Body", "Body004")

# Sketch on XZ plane
sketch10 = body5.newObject("Sketcher::SketchObject", "Sketch009")
sketch10.AttachmentSupport = (doc.getObject("XZ_Plane004"), [""])
sketch10.MapMode = "FlatFace"
sketch10.AttachmentOffset = App.Placement(Vector(0, 0, -1 * 25.4), App.Rotation())
sketch10.addGeometry(Part.LineSegment(Vector(223.8, -406.4, 0), Vector(223.8, -381.1, 0)), False)
sketch10.addGeometry(Part.LineSegment(Vector(223.8, -381.1, 0), Vector(376.2, -381.1, 0)), False)
sketch10.addGeometry(Part.LineSegment(Vector(376.2, -381.1, 0), Vector(376.2, -406.4, 0)), False)
sketch10.addGeometry(Part.LineSegment(Vector(376.2, -406.4, 0), Vector(223.8, -406.4, 0)), False)
sketch10.addGeometry(Part.Circle(Vector(236.5, -393.8, 0), Vector(0, 0, 1), 3.6), False)
sketch10.addGeometry(Part.Circle(Vector(261.9, -393.8, 0), Vector(0, 0, 1), 3.6), False)
sketch10.addGeometry(Part.Circle(Vector(287.3, -393.8, 0), Vector(0, 0, 1), 3.6), False)
sketch10.addGeometry(Part.Circle(Vector(312.7, -393.8, 0), Vector(0, 0, 1), 3.6), False)
sketch10.addGeometry(Part.Circle(Vector(338.1, -393.8, 0), Vector(0, 0, 1), 3.6), False)
sketch10.addGeometry(Part.Circle(Vector(363.5, -393.8, 0), Vector(0, 0, 1), 3.6), False)
sketch10.addConstraint(Sketcher.Constraint("Coincident", 0, 2, 1, 1))
sketch10.addConstraint(Sketcher.Constraint("Coincident", 1, 2, 2, 1))
sketch10.addConstraint(Sketcher.Constraint("Coincident", 2, 2, 3, 1))
sketch10.addConstraint(Sketcher.Constraint("Coincident", 3, 2, 0, 1))
sketch10.addConstraint(Sketcher.Constraint("Vertical", 0))
sketch10.addConstraint(Sketcher.Constraint("Horizontal", 1))
sketch10.addConstraint(Sketcher.Constraint("Vertical", 2))
sketch10.addConstraint(Sketcher.Constraint("Horizontal", 3))
sketch10.addConstraint(Sketcher.Constraint("Equal", 4, 5))
sketch10.addConstraint(Sketcher.Constraint("Equal", 5, 6))
sketch10.addConstraint(Sketcher.Constraint("Equal", 6, 7))
sketch10.addConstraint(Sketcher.Constraint("Equal", 7, 8))
sketch10.addConstraint(Sketcher.Constraint("Equal", 8, 9))
sketch10.addConstraint(Sketcher.Constraint("Horizontal", 4, 3, 5, 3))
sketch10.addConstraint(Sketcher.Constraint("Horizontal", 5, 3, 6, 3))
sketch10.addConstraint(Sketcher.Constraint("Horizontal", 6, 3, 7, 3))
sketch10.addConstraint(Sketcher.Constraint("Horizontal", 7, 3, 8, 3))
sketch10.addConstraint(Sketcher.Constraint("Horizontal", 8, 3, 9, 3))
sketch10.addConstraint(Sketcher.Constraint("DistanceX", 1, 1, 1, 2, Q("6 in")))
sketch10.addConstraint(Sketcher.Constraint("DistanceY", 0, 1, 0, 2, Q("1 in")))
sketch10.addConstraint(Sketcher.Constraint("Diameter", 4, Q("0.281 in")))
sketch10.addConstraint(Sketcher.Constraint("DistanceX", 4, 3, 5, 3, Q("1 in")))
sketch10.addConstraint(Sketcher.Constraint("DistanceX", 5, 3, 6, 3, Q("1 in")))
sketch10.addConstraint(Sketcher.Constraint("DistanceX", 6, 3, 7, 3, Q("1 in")))
sketch10.addConstraint(Sketcher.Constraint("DistanceX", 7, 3, 8, 3, Q("1 in")))
sketch10.addConstraint(Sketcher.Constraint("DistanceX", 8, 3, 9, 3, Q("1 in")))
sketch10.addConstraint(Sketcher.Constraint("DistanceX", 0, 2, 4, 3, Q("0.5 in")))
sketch10.addConstraint(Sketcher.Constraint("DistanceY", 4, 3, 0, 2, Q("0.5 in")))
sketch10.addConstraint(Sketcher.Constraint("DistanceX", -1, 1, 4, 3, Q("236.5 mm")))
sketch10.addConstraint(Sketcher.Constraint("DistanceY", 4, 3, -1, 1, Q("393.75 mm")))
pad5 = body5.newObject("PartDesign::Pad", "Pad004")
pad5.Profile = sketch10
pad5.Length = Q("0.25 in")
pad5.Reversed = True
body6 = doc.addObject("PartDesign::Body", "Body005")

# Sketch on XZ plane
sketch11 = body6.newObject("Sketcher::SketchObject", "Sketch010")
sketch11.AttachmentSupport = (doc.getObject("XZ_Plane005"), [""])
sketch11.MapMode = "FlatFace"
sketch11.AttachmentOffset = App.Placement(Vector(0, 0, -1 * 25.4), App.Rotation())
sketch11.addGeometry(Part.LineSegment(Vector(729.7, -200.8, 0), Vector(729.7, -99.2, 0)), False)
sketch11.addGeometry(Part.LineSegment(Vector(729.7, -99.2, 0), Vector(755.1, -99.2, 0)), False)
sketch11.addGeometry(Part.LineSegment(Vector(755.1, -99.2, 0), Vector(755.1, -200.8, 0)), False)
sketch11.addGeometry(Part.LineSegment(Vector(755.1, -200.8, 0), Vector(729.7, -200.8, 0)), False)
sketch11.addGeometry(Part.Circle(Vector(742.4, -111.9, 0), Vector(0, 0, 1), 3.6), False)
sketch11.addGeometry(Part.Circle(Vector(742.4, -137.3, 0), Vector(0, 0, 1), 3.6), False)
sketch11.addGeometry(Part.Circle(Vector(742.4, -162.7, 0), Vector(0, 0, 1), 3.6), False)
sketch11.addGeometry(Part.Circle(Vector(742.4, -188.1, 0), Vector(0, 0, 1), 3.6), False)
sketch11.addConstraint(Sketcher.Constraint("Coincident", 0, 2, 1, 1))
sketch11.addConstraint(Sketcher.Constraint("Coincident", 1, 2, 2, 1))
sketch11.addConstraint(Sketcher.Constraint("Coincident", 2, 2, 3, 1))
sketch11.addConstraint(Sketcher.Constraint("Coincident", 3, 2, 0, 1))
sketch11.addConstraint(Sketcher.Constraint("Vertical", 0))
sketch11.addConstraint(Sketcher.Constraint("Horizontal", 1))
sketch11.addConstraint(Sketcher.Constraint("Vertical", 2))
sketch11.addConstraint(Sketcher.Constraint("Horizontal", 3))
sketch11.addConstraint(Sketcher.Constraint("Equal", 4, 5))
sketch11.addConstraint(Sketcher.Constraint("Equal", 5, 6))
sketch11.addConstraint(Sketcher.Constraint("Equal", 6, 7))
sketch11.addConstraint(Sketcher.Constraint("Vertical", 4, 3, 5, 3))
sketch11.addConstraint(Sketcher.Constraint("Vertical", 5, 3, 6, 3))
sketch11.addConstraint(Sketcher.Constraint("Vertical", 6, 3, 7, 3))
sketch11.addConstraint(Sketcher.Constraint("DistanceX", 1, 1, 1, 2, Q("1 in")))
sketch11.addConstraint(Sketcher.Constraint("DistanceY", 0, 1, 0, 2, Q("4 in")))
sketch11.addConstraint(Sketcher.Constraint("Diameter", 4, Q("0.281 in")))
sketch11.addConstraint(Sketcher.Constraint("DistanceY", 5, 3, 4, 3, Q("1 in")))
sketch11.addConstraint(Sketcher.Constraint("DistanceY", 6, 3, 5, 3, Q("1 in")))
sketch11.addConstraint(Sketcher.Constraint("DistanceY", 7, 3, 6, 3, Q("1 in")))
sketch11.addConstraint(Sketcher.Constraint("DistanceX", 0, 2, 4, 3, Q("0.5 in")))
sketch11.addConstraint(Sketcher.Constraint("DistanceY", 4, 3, 0, 2, Q("0.5 in")))
sketch11.addConstraint(Sketcher.Constraint("DistanceX", -1, 1, 4, 3, Q("742.392 mm")))
sketch11.addConstraint(Sketcher.Constraint("DistanceY", 4, 3, -1, 1, Q("111.9 mm")))
pad6 = body6.newObject("PartDesign::Pad", "Pad005")
pad6.Profile = sketch11
pad6.Length = Q("0.25 in")
pad6.Reversed = True
body.Visibility = False
body2.Visibility = False
body4.Visibility = False
body5.Visibility = False
body6.Visibility = False

doc.recompute()
